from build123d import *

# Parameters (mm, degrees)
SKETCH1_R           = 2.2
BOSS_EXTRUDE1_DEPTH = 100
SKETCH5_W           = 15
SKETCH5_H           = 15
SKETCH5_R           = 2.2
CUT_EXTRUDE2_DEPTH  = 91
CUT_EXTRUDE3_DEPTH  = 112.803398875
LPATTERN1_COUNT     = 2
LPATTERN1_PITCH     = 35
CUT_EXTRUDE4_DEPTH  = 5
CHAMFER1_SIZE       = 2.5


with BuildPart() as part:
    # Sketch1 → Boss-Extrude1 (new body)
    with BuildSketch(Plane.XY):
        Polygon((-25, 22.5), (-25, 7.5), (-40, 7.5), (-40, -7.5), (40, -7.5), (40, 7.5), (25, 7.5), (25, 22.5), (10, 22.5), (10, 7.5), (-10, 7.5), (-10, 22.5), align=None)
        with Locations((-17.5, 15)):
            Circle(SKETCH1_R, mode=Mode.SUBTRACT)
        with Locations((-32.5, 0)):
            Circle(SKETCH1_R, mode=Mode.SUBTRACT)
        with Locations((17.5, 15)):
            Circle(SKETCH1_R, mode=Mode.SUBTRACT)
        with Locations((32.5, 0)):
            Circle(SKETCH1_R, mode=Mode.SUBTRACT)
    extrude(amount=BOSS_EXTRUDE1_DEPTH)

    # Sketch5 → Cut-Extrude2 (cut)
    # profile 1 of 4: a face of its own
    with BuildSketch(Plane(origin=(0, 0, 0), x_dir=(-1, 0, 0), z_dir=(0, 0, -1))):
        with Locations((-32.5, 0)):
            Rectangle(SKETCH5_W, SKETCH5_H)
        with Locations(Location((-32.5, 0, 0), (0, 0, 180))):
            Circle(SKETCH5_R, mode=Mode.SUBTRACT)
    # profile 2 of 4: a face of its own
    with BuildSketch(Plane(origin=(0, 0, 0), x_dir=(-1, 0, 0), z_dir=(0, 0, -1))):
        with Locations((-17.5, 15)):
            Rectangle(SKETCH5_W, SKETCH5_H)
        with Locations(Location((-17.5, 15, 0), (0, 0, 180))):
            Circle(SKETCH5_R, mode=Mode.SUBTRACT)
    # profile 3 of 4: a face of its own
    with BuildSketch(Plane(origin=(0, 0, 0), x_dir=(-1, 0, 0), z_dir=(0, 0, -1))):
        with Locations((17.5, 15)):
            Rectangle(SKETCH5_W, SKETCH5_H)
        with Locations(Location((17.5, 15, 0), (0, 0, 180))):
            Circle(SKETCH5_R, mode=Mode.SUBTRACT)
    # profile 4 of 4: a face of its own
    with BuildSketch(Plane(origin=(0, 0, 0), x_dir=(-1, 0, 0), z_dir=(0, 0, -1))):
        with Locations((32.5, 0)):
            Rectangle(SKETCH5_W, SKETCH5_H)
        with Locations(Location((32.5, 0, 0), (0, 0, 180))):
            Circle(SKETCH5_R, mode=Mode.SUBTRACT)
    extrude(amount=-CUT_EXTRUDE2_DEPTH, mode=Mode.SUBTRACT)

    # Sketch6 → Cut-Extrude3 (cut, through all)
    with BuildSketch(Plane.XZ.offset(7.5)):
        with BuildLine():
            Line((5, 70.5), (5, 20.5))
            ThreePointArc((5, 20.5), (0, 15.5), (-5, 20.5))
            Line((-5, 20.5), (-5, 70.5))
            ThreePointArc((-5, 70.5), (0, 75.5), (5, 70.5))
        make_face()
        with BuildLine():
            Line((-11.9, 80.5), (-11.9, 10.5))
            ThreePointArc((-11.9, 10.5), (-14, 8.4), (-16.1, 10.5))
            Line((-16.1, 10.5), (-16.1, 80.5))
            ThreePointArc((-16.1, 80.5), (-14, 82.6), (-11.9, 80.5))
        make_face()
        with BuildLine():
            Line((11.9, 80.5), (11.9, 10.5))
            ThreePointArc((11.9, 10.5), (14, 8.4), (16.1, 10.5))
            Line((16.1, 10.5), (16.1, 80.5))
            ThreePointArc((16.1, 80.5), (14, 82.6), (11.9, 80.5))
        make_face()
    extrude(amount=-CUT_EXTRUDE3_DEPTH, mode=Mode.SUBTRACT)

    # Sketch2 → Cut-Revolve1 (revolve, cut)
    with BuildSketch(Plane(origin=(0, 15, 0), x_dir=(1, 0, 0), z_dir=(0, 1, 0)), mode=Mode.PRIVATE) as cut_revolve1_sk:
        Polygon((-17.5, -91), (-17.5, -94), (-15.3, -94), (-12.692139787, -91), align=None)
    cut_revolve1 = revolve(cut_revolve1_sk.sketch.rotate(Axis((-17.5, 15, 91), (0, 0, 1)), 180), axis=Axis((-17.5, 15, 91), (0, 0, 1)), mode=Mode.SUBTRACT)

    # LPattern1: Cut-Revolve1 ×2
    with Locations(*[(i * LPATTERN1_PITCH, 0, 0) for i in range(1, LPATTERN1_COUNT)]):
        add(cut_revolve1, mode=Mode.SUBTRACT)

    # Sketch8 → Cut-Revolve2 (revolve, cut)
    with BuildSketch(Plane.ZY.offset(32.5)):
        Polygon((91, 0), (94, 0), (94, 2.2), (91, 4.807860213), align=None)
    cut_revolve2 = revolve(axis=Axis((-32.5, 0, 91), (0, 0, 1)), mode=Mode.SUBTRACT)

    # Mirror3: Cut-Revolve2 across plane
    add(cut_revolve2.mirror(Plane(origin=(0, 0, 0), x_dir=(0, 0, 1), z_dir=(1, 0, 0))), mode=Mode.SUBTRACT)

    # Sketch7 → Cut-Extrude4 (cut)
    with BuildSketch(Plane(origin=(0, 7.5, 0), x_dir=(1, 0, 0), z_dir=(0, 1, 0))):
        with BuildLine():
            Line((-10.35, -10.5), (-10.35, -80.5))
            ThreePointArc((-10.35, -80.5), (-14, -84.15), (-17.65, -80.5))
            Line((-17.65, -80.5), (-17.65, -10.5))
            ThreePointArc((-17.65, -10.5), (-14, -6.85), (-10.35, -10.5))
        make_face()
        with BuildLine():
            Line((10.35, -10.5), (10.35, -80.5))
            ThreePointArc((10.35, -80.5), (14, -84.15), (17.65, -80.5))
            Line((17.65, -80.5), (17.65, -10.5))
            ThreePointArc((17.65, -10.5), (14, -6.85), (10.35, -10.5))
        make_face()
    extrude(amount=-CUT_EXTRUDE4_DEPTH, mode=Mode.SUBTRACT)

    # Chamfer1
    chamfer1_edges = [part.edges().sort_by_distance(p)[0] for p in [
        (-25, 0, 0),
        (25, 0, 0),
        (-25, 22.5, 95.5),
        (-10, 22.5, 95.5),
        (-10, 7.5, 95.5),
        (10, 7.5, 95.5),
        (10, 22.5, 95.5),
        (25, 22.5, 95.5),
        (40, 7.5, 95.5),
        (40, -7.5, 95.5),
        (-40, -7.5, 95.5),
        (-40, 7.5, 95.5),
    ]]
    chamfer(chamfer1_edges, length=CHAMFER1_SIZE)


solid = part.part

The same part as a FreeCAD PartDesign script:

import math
import FreeCAD as App
import Part
import Sketcher
Q = App.Units.Quantity


def edges_at(feature, points):
    """Names of the edges that pass closest to the given points."""
    edges = feature.Shape.Edges
    near = lambda p: min(range(len(edges)), key=lambda i: edges[i].distToShape(Part.Vertex(*p))[0])
    return sorted({f"Edge{near(p) + 1}" for p in points})

doc = App.newDocument("Part")
body = doc.addObject("PartDesign::Body", "Body")

sketch1 = body.newObject("Sketcher::SketchObject", "Sketch")
sketch1.AttachmentSupport = (doc.getObject("XY_Plane"), [""])
sketch1.MapMode = "FlatFace"
sketch1.addGeometry([
    Part.LineSegment(App.Vector(-25, 22.5, 0), App.Vector(-25, 7.5, 0)),
    Part.LineSegment(App.Vector(-25, 7.5, 0), App.Vector(-40, 7.5, 0)),
    Part.LineSegment(App.Vector(-40, 7.5, 0), App.Vector(-40, -7.5, 0)),
    Part.LineSegment(App.Vector(-40, -7.5, 0), App.Vector(40, -7.5, 0)),
    Part.LineSegment(App.Vector(40, -7.5, 0), App.Vector(40, 7.5, 0)),
    Part.LineSegment(App.Vector(40, 7.5, 0), App.Vector(25, 7.5, 0)),
    Part.LineSegment(App.Vector(25, 7.5, 0), App.Vector(25, 22.5, 0)),
    Part.LineSegment(App.Vector(25, 22.5, 0), App.Vector(10, 22.5, 0)),
    Part.LineSegment(App.Vector(10, 22.5, 0), App.Vector(10, 7.5, 0)),
    Part.LineSegment(App.Vector(10, 7.5, 0), App.Vector(-10, 7.5, 0)),
    Part.LineSegment(App.Vector(-10, 7.5, 0), App.Vector(-10, 22.5, 0)),
    Part.LineSegment(App.Vector(-10, 22.5, 0), App.Vector(-25, 22.5, 0)),
    Part.Circle(App.Vector(-32.5, 0, 0), App.Vector(0, 0, 1), 2.2),
    Part.Circle(App.Vector(32.5, 0, 0), App.Vector(0, 0, 1), 2.2),
    Part.Circle(App.Vector(-17.5, 15, 0), App.Vector(0, 0, 1), 2.2),
    Part.Circle(App.Vector(17.5, 15, 0), App.Vector(0, 0, 1), 2.2),
], False)
sketch1.addConstraint([
    Sketcher.Constraint("Coincident", 0, 2, 1, 1),
    Sketcher.Constraint("Coincident", 1, 2, 2, 1),
    Sketcher.Constraint("Coincident", 2, 2, 3, 1),
    Sketcher.Constraint("Coincident", 3, 2, 4, 1),
    Sketcher.Constraint("Coincident", 4, 2, 5, 1),
    Sketcher.Constraint("Coincident", 5, 2, 6, 1),
    Sketcher.Constraint("Coincident", 6, 2, 7, 1),
    Sketcher.Constraint("Coincident", 7, 2, 8, 1),
    Sketcher.Constraint("Coincident", 8, 2, 9, 1),
    Sketcher.Constraint("Coincident", 9, 2, 10, 1),
    Sketcher.Constraint("Coincident", 10, 2, 11, 1),
    Sketcher.Constraint("Coincident", 11, 2, 0, 1),
    Sketcher.Constraint("Vertical", 0),
    Sketcher.Constraint("Horizontal", 1),
    Sketcher.Constraint("Vertical", 2),
    Sketcher.Constraint("Horizontal", 3),
    Sketcher.Constraint("Vertical", 4),
    Sketcher.Constraint("Horizontal", 5),
    Sketcher.Constraint("Vertical", 6),
    Sketcher.Constraint("Horizontal", 7),
    Sketcher.Constraint("Vertical", 8),
    Sketcher.Constraint("Horizontal", 9),
    Sketcher.Constraint("Vertical", 10),
    Sketcher.Constraint("Horizontal", 11),
    Sketcher.Constraint("Equal", 12, 13),
    Sketcher.Constraint("Equal", 13, 14),
    Sketcher.Constraint("Equal", 14, 15),
    Sketcher.Constraint("Symmetric", 12, 3, 13, 3, -1, 1),
    Sketcher.Constraint("Symmetric", 1, 2, 3, 2, -1, 1),
    Sketcher.Constraint("Symmetric", 14, 3, 15, 3, -2),
    Sketcher.Constraint("Symmetric", 0, 2, 5, 2, -2),
    Sketcher.Constraint("Symmetric", 7, 2, 10, 2, -2),
    Sketcher.Constraint("PointOnObject", 12, 3, -1),
    Sketcher.Constraint("Horizontal", 5, 2, 8, 2),
    Sketcher.Constraint("Equal", 5, 7),
    Sketcher.Constraint("Equal", 11, 0),
    Sketcher.Constraint("Equal", 0, 2),
    Sketcher.Constraint("Diameter", 12, Q("4.4 mm")),
    Sketcher.Constraint("DistanceX", 1, 2, 1, 1, Q("15 mm")),
    Sketcher.Constraint("DistanceX", 3, 1, 3, 2, Q("80 mm")),
    Sketcher.Constraint("DistanceY", -1, 1, 14, 3, Q("15 mm")),
    Sketcher.Constraint("DistanceX", 12, 3, 13, 3, Q("65 mm")),
    Sketcher.Constraint("DistanceX", 12, 3, 14, 3, Q("15 mm")),
])
pad1 = body.newObject("PartDesign::Pad", "Pad")
pad1.Profile = sketch1
pad1.Length = 100

sketch2 = body.newObject("Sketcher::SketchObject", "Sketch001")
sketch2.AttachmentSupport = (doc.getObject("XY_Plane"), [""])
sketch2.MapMode = "FlatFace"
sketch2.addGeometry([
    Part.LineSegment(App.Vector(40, 7.5, 0), App.Vector(40, -7.5, 0)),
    Part.LineSegment(App.Vector(40, -7.5, 0), App.Vector(25, -7.5, 0)),
    Part.LineSegment(App.Vector(25, -7.5, 0), App.Vector(25, 7.5, 0)),
    Part.LineSegment(App.Vector(25, 7.5, 0), App.Vector(40, 7.5, 0)),
    Part.Circle(App.Vector(32.5, 0, 0), App.Vector(0, 0, 1), 2.2),
    Part.LineSegment(App.Vector(25, 22.5, 0), App.Vector(25, 7.5, 0)),
    Part.LineSegment(App.Vector(25, 7.5, 0), App.Vector(10, 7.5, 0)),
    Part.LineSegment(App.Vector(10, 7.5, 0), App.Vector(10, 22.5, 0)),
    Part.LineSegment(App.Vector(10, 22.5, 0), App.Vector(25, 22.5, 0)),
    Part.Circle(App.Vector(17.5, 15, 0), App.Vector(0, 0, 1), 2.2),
    Part.LineSegment(App.Vector(-10, 22.5, 0), App.Vector(-10, 7.5, 0)),
    Part.LineSegment(App.Vector(-10, 7.5, 0), App.Vector(-25, 7.5, 0)),
    Part.LineSegment(App.Vector(-25, 7.5, 0), App.Vector(-25, 22.5, 0)),
    Part.LineSegment(App.Vector(-25, 22.5, 0), App.Vector(-10, 22.5, 0)),
    Part.Circle(App.Vector(-17.5, 15, 0), App.Vector(0, 0, 1), 2.2),
    Part.LineSegment(App.Vector(-25, 7.5, 0), App.Vector(-25, -7.5, 0)),
    Part.LineSegment(App.Vector(-25, -7.5, 0), App.Vector(-40, -7.5, 0)),
    Part.LineSegment(App.Vector(-40, -7.5, 0), App.Vector(-40, 7.5, 0)),
    Part.LineSegment(App.Vector(-40, 7.5, 0), App.Vector(-25, 7.5, 0)),
    Part.Circle(App.Vector(-32.5, 0, 0), App.Vector(0, 0, 1), 2.2),
], False)
sketch2.addConstraint([
    Sketcher.Constraint("Coincident", 0, 2, 1, 1),
    Sketcher.Constraint("Coincident", 1, 2, 2, 1),
    Sketcher.Constraint("Coincident", 2, 2, 3, 1),
    Sketcher.Constraint("Coincident", 3, 2, 0, 1),
    Sketcher.Constraint("Coincident", 5, 2, 6, 1),
    Sketcher.Constraint("Coincident", 6, 2, 7, 1),
    Sketcher.Constraint("Coincident", 7, 2, 8, 1),
    Sketcher.Constraint("Coincident", 8, 2, 5, 1),
    Sketcher.Constraint("Coincident", 10, 2, 11, 1),
    Sketcher.Constraint("Coincident", 11, 2, 12, 1),
    Sketcher.Constraint("Coincident", 12, 2, 13, 1),
    Sketcher.Constraint("Coincident", 13, 2, 10, 1),
    Sketcher.Constraint("Coincident", 15, 2, 16, 1),
    Sketcher.Constraint("Coincident", 16, 2, 17, 1),
    Sketcher.Constraint("Coincident", 17, 2, 18, 1),
    Sketcher.Constraint("Coincident", 18, 2, 15, 1),
    Sketcher.Constraint("Vertical", 0),
    Sketcher.Constraint("Horizontal", 1),
    Sketcher.Constraint("Vertical", 2),
    Sketcher.Constraint("Horizontal", 3),
    Sketcher.Constraint("Vertical", 5),
    Sketcher.Constraint("Horizontal", 6),
    Sketcher.Constraint("Vertical", 7),
    Sketcher.Constraint("Horizontal", 8),
    Sketcher.Constraint("Vertical", 10),
    Sketcher.Constraint("Horizontal", 11),
    Sketcher.Constraint("Vertical", 12),
    Sketcher.Constraint("Horizontal", 13),
    Sketcher.Constraint("Vertical", 15),
    Sketcher.Constraint("Horizontal", 16),
    Sketcher.Constraint("Vertical", 17),
    Sketcher.Constraint("Horizontal", 18),
    Sketcher.Constraint("Coincident", 5, 2, 2, 2),
    Sketcher.Constraint("Coincident", 18, 2, 11, 2),
    Sketcher.Constraint("Equal", 4, 9),
    Sketcher.Constraint("Equal", 9, 14),
    Sketcher.Constraint("Equal", 14, 19),
    Sketcher.Constraint("Symmetric", 4, 3, 19, 3, -1, 1),
    Sketcher.Constraint("Symmetric", 1, 2, 11, 2, -1, 1),
    Sketcher.Constraint("Symmetric", 3, 2, 16, 2, -1, 1),
    Sketcher.Constraint("Symmetric", 9, 3, 14, 3, -2),
    Sketcher.Constraint("Symmetric", 6, 2, 10, 2, -2),
    Sketcher.Constraint("PointOnObject", 4, 3, -1),
    Sketcher.Constraint("Horizontal", 8, 2, 12, 2),
    Sketcher.Constraint("Equal", 3, 6),
    Sketcher.Constraint("Equal", 18, 0),
    Sketcher.Constraint("Equal", 2, 5),
    Sketcher.Constraint("Diameter", 4, Q("4.4 mm")),
    Sketcher.Constraint("DistanceX", 1, 2, 1, 1, Q("15 mm")),
    Sketcher.Constraint("DistanceY", -1, 1, 9, 3, Q("15 mm")),
    Sketcher.Constraint("DistanceX", -1, 1, 0, 2, Q("40 mm")),
    Sketcher.Constraint("DistanceX", 9, 3, 4, 3, Q("15 mm")),
    Sketcher.Constraint("DistanceX", 14, 3, 9, 3, Q("35 mm")),
])
pocket1 = body.newObject("PartDesign::Pocket", "Pocket")
pocket1.Profile = sketch2
pocket1.Length = 91
pocket1.Reversed = True

sketch3 = body.newObject("Sketcher::SketchObject", "Sketch002")
sketch3.AttachmentSupport = (doc.getObject("XZ_Plane"), [""])
sketch3.MapMode = "FlatFace"
sketch3.AttachmentOffset = App.Placement(App.Vector(0, 0, 7.5), App.Rotation())
sketch3.addGeometry([
    Part.LineSegment(App.Vector(5, 20.5, 0), App.Vector(5, 70.5, 0)),
    Part.ArcOfCircle(Part.Circle(App.Vector(0, 70.5, 0), App.Vector(0, 0, 1), 5), math.radians(0), math.radians(180)),
    Part.LineSegment(App.Vector(-5, 70.5, 0), App.Vector(-5, 20.5, 0)),
    Part.ArcOfCircle(Part.Circle(App.Vector(0, 20.5, 0), App.Vector(0, 0, 1), 5), math.radians(180), math.radians(360)),
    Part.LineSegment(App.Vector(-11.9, 10.5, 0), App.Vector(-11.9, 80.5, 0)),
    Part.ArcOfCircle(Part.Circle(App.Vector(-14, 80.5, 0), App.Vector(0, 0, 1), 2.1), math.radians(0), math.radians(180)),
    Part.LineSegment(App.Vector(-16.1, 80.5, 0), App.Vector(-16.1, 10.5, 0)),
    Part.ArcOfCircle(Part.Circle(App.Vector(-14, 10.5, 0), App.Vector(0, 0, 1), 2.1), math.radians(180), math.radians(360)),
    Part.LineSegment(App.Vector(11.9, 80.5, 0), App.Vector(11.9, 10.5, 0)),
    Part.ArcOfCircle(Part.Circle(App.Vector(14, 10.5, 0), App.Vector(0, 0, 1), 2.1), math.radians(180), math.radians(360)),
    Part.LineSegment(App.Vector(16.1, 10.5, 0), App.Vector(16.1, 80.5, 0)),
    Part.ArcOfCircle(Part.Circle(App.Vector(14, 80.5, 0), App.Vector(0, 0, 1), 2.1), math.radians(0), math.radians(180)),
], False)
sketch3.addConstraint([
    Sketcher.Constraint("Tangent", 0, 2, 1, 1),
    Sketcher.Constraint("Tangent", 1, 2, 2, 1),
    Sketcher.Constraint("Tangent", 2, 2, 3, 1),
    Sketcher.Constraint("Tangent", 3, 2, 0, 1),
    Sketcher.Constraint("Tangent", 4, 2, 5, 1),
    Sketcher.Constraint("Tangent", 5, 2, 6, 1),
    Sketcher.Constraint("Tangent", 6, 2, 7, 1),
    Sketcher.Constraint("Tangent", 7, 2, 4, 1),
    Sketcher.Constraint("Tangent", 8, 2, 9, 1),
    Sketcher.Constraint("Tangent", 9, 2, 10, 1),
    Sketcher.Constraint("Tangent", 10, 2, 11, 1),
    Sketcher.Constraint("Tangent", 11, 2, 8, 1),
    Sketcher.Constraint("Vertical", 0),
    Sketcher.Constraint("Vertical", 2),
    Sketcher.Constraint("Vertical", 4),
    Sketcher.Constraint("Vertical", 6),
    Sketcher.Constraint("Vertical", 8),
    Sketcher.Constraint("Vertical", 10),
    Sketcher.Constraint("Equal", 7, 9),
    Sketcher.Constraint("Symmetric", 7, 3, 9, 3, -2),
    Sketcher.Constraint("PointOnObject", 1, 3, -2),
    Sketcher.Constraint("Horizontal", 5, 3, 11, 3),
    Sketcher.Constraint("Radius", 1, Q("5 mm")),
    Sketcher.Constraint("Radius", 5, Q("2.1 mm")),
    Sketcher.Constraint("DistanceY", 0, 1, 0, 2, Q("50 mm")),
    Sketcher.Constraint("DistanceY", 4, 1, 4, 2, Q("70 mm")),
    Sketcher.Constraint("DistanceX", 5, 3, -1, 1, Q("14 mm")),
    Sketcher.Constraint("DistanceY", 1, 3, 5, 3, Q("10 mm")),
    Sketcher.Constraint("DistanceY", -1, 1, 1, 3, Q("70.5 mm")),
])
pocket2 = body.newObject("PartDesign::Pocket", "Pocket001")
pocket2.Profile = sketch3
pocket2.Type = "ThroughAll"

sketch4 = body.newObject("Sketcher::SketchObject", "Sketch003")
sketch4.AttachmentSupport = (doc.getObject("XZ_Plane"), [""])
sketch4.MapMode = "FlatFace"
sketch4.AttachmentOffset = App.Placement(App.Vector(0, 0, -15), App.Rotation())
sketch4.addGeometry([
    Part.LineSegment(App.Vector(-17.5, 91, 0), App.Vector(-17.5, 94, 0)),
    Part.LineSegment(App.Vector(-17.5, 94, 0), App.Vector(-15.3, 94, 0)),
    Part.LineSegment(App.Vector(-15.3, 94, 0), App.Vector(-12.7, 91, 0)),
    Part.LineSegment(App.Vector(-12.7, 91, 0), App.Vector(-17.5, 91, 0)),
], False)
sketch4.addGeometry(Part.LineSegment(App.Vector(-17.5, 91, 0), App.Vector(-17.5, 94, 0)), True)
sketch4.addConstraint([
    Sketcher.Constraint("Coincident", 0, 2, 1, 1),
    Sketcher.Constraint("Coincident", 1, 2, 2, 1),
    Sketcher.Constraint("Coincident", 2, 2, 3, 1),
    Sketcher.Constraint("Coincident", 3, 2, 0, 1),
    Sketcher.Constraint("Vertical", 0),
    Sketcher.Constraint("Horizontal", 1),
    Sketcher.Constraint("Horizontal", 3),
    Sketcher.Constraint("Vertical", 4),
    Sketcher.Constraint("Coincident", 4, 1, 3, 2),
    Sketcher.Constraint("Horizontal", 1, 2, 4, 2),
    Sketcher.Constraint("DistanceY", 0, 1, 0, 2, Q("3 mm")),
    Sketcher.Constraint("Angle", 2, Q("-49 deg")),
    Sketcher.Constraint("DistanceX", 1, 1, 1, 2, Q("2.2 mm")),
    Sketcher.Constraint("DistanceY", -1, 1, 0, 2, Q("94 mm")),
    Sketcher.Constraint("DistanceX", 0, 2, -1, 1, Q("17.5 mm")),
])
groove = body.newObject("PartDesign::Groove", "Groove")
groove.Profile = sketch4
groove.ReferenceAxis = (sketch4, ["Axis0"])
groove.Angle = 360
doc.recompute()

linearpattern = body.newObject("PartDesign::LinearPattern", "LinearPattern")
linearpattern.Originals = [groove]
linearpattern.Direction = (doc.getObject("X_Axis"), [""])
linearpattern.Mode = "offset"
linearpattern.Offset = 35
linearpattern.Occurrences = 2
body.Tip = linearpattern

sketch5 = body.newObject("Sketcher::SketchObject", "Sketch004")
sketch5.AttachmentSupport = (doc.getObject("YZ_Plane"), [""])
sketch5.MapMode = "FlatFace"
sketch5.AttachmentOffset = App.Placement(App.Vector(0, 0, -32.5), App.Rotation())
sketch5.addGeometry([
    Part.LineSegment(App.Vector(0, 91, 0), App.Vector(0, 94, 0)),
    Part.LineSegment(App.Vector(0, 94, 0), App.Vector(2.2, 94, 0)),
    Part.LineSegment(App.Vector(2.2, 94, 0), App.Vector(4.8, 91, 0)),
    Part.LineSegment(App.Vector(4.8, 91, 0), App.Vector(0, 91, 0)),
], False)
sketch5.addConstraint([
    Sketcher.Constraint("Coincident", 0, 2, 1, 1),
    Sketcher.Constraint("Coincident", 1, 2, 2, 1),
    Sketcher.Constraint("Coincident", 2, 2, 3, 1),
    Sketcher.Constraint("Coincident", 3, 2, 0, 1),
    Sketcher.Constraint("Vertical", 0),
    Sketcher.Constraint("Horizontal", 1),
    Sketcher.Constraint("Horizontal", 3),
    Sketcher.Constraint("PointOnObject", 0, 2, -2),
    Sketcher.Constraint("DistanceY", 0, 1, 0, 2, Q("3 mm")),
    Sketcher.Constraint("Angle", 2, Q("-49 deg")),
    Sketcher.Constraint("DistanceX", 1, 1, 1, 2, Q("2.2 mm")),
    Sketcher.Constraint("DistanceY", -1, 1, 0, 2, Q("94 mm")),
])
groove2 = body.newObject("PartDesign::Groove", "Groove001")
groove2.Profile = sketch5
groove2.ReferenceAxis = (sketch5, ["V_Axis"])
groove2.Angle = 360
doc.recompute()

mirrored = body.newObject("PartDesign::Mirrored", "Mirrored")
mirrored.Originals = [groove2]
mirrored.MirrorPlane = (doc.getObject("YZ_Plane"), [""])
body.Tip = mirrored

sketch6 = body.newObject("Sketcher::SketchObject", "Sketch005")
sketch6.AttachmentSupport = (doc.getObject("XZ_Plane"), [""])
sketch6.MapMode = "FlatFace"
sketch6.AttachmentOffset = App.Placement(App.Vector(0, 0, -7.5), App.Rotation())
sketch6.addGeometry([
    Part.LineSegment(App.Vector(-10.3, 80.5, 0), App.Vector(-10.3, 10.5, 0)),
    Part.ArcOfCircle(Part.Circle(App.Vector(-14, 10.5, 0), App.Vector(0, 0, 1), 3.6), math.radians(180), math.radians(360)),
    Part.LineSegment(App.Vector(-17.6, 10.5, 0), App.Vector(-17.6, 80.5, 0)),
    Part.ArcOfCircle(Part.Circle(App.Vector(-14, 80.5, 0), App.Vector(0, 0, 1), 3.6), math.radians(0), math.radians(180)),
    Part.LineSegment(App.Vector(10.3, 10.5, 0), App.Vector(10.3, 80.5, 0)),
    Part.ArcOfCircle(Part.Circle(App.Vector(14, 80.5, 0), App.Vector(0, 0, 1), 3.6), math.radians(0), math.radians(180)),
    Part.LineSegment(App.Vector(17.6, 80.5, 0), App.Vector(17.6, 10.5, 0)),
    Part.ArcOfCircle(Part.Circle(App.Vector(14, 10.5, 0), App.Vector(0, 0, 1), 3.6), math.radians(180), math.radians(360)),
], False)
sketch6.addConstraint([
    Sketcher.Constraint("Tangent", 0, 2, 1, 2),
    Sketcher.Constraint("Tangent", 1, 1, 2, 1),
    Sketcher.Constraint("Tangent", 2, 2, 3, 2),
    Sketcher.Constraint("Tangent", 3, 1, 0, 1),
    Sketcher.Constraint("Tangent", 4, 2, 5, 2),
    Sketcher.Constraint("Tangent", 5, 1, 6, 1),
    Sketcher.Constraint("Tangent", 6, 2, 7, 2),
    Sketcher.Constraint("Tangent", 7, 1, 4, 1),
    Sketcher.Constraint("Vertical", 0),
    Sketcher.Constraint("Vertical", 2),
    Sketcher.Constraint("Vertical", 4),
    Sketcher.Constraint("Vertical", 6),
    Sketcher.Constraint("Equal", 3, 5),
    Sketcher.Constraint("Symmetric", 3, 3, 5, 3, -2),
    Sketcher.Constraint("Horizontal", 1, 3, 7, 3),
    Sketcher.Constraint("DistanceY", 0, 2, 0, 1, Q("70 mm")),
    Sketcher.Constraint("Radius", 1, Q("3.65 mm")),
    Sketcher.Constraint("DistanceX", 1, 3, -1, 1, Q("14 mm")),
    Sketcher.Constraint("DistanceY", -1, 1, 1, 3, Q("10.5 mm")),
])
pocket3 = body.newObject("PartDesign::Pocket", "Pocket002")
pocket3.Profile = sketch6
pocket3.Length = 5
pocket3.Reversed = True
doc.recompute()

chamfer = body.newObject("PartDesign::Chamfer", "Chamfer")
chamfer.Base = (pocket3, edges_at(pocket3, [
    (-25, 0, 0),
    (25, 0, 0),
    (-25, 22.5, 95.5),
    (-10, 22.5, 95.5),
    (-10, 7.5, 95.5),
    (10, 7.5, 95.5),
    (10, 22.5, 95.5),
    (25, 22.5, 95.5),
    (40, 7.5, 95.5),
    (40, -7.5, 95.5),
    (-40, -7.5, 95.5),
    (-40, 7.5, 95.5),
]))
chamfer.Size = 2.5

doc.recompute()
